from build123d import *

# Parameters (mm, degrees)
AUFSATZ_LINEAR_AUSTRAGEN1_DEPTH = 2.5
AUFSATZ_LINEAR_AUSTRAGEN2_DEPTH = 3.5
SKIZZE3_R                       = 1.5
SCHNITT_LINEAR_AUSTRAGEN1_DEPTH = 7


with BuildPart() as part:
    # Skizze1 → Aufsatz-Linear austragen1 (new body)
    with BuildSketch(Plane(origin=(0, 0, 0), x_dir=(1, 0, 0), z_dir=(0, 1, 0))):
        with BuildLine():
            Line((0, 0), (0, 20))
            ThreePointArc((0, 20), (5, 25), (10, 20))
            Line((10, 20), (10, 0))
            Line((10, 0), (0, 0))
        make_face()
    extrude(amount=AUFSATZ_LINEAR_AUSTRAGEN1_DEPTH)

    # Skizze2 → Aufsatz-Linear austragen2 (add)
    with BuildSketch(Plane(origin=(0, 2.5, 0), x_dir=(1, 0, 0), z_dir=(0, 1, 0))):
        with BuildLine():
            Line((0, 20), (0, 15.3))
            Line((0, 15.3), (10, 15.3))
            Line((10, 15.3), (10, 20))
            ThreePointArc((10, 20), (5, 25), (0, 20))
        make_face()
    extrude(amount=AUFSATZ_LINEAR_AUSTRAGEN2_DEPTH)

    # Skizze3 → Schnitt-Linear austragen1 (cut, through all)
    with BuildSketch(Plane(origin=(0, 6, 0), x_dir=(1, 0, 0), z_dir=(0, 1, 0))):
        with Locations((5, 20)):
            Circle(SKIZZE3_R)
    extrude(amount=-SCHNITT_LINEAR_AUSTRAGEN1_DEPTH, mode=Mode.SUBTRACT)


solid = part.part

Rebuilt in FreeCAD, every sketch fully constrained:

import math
import FreeCAD as App
import Part
import Sketcher

V = App.Vector

doc = App.newDocument("Part")
body = doc.addObject("PartDesign::Body", "Body")

# Sketch on XZ plane
sketch1 = body.newObject("Sketcher::SketchObject", "Sketch")
sketch1.AttachmentSupport = (doc.getObject("XZ_Plane"), [""])
sketch1.MapMode = "FlatFace"
sketch1.addGeometry([
    Part.LineSegment(V(0, -20, 0), V(0, 0, 0)),
    Part.LineSegment(V(0, 0, 0), V(10, 0, 0)),
    Part.LineSegment(V(10, 0, 0), V(10, -20, 0)),
    Part.ArcOfCircle(Part.Circle(V(5, -20, 0), V(0, 0, 1), 5), math.radians(180), math.radians(360)),
], False)
sketch1.addConstraint([
    Sketcher.Constraint("Coincident", 0, 2, 1, 1),
    Sketcher.Constraint("Coincident", 1, 2, 2, 1),
    Sketcher.Constraint("Tangent", 2, 2, 3, 2),
    Sketcher.Constraint("Tangent", 3, 1, 0, 1),
    Sketcher.Constraint("Vertical", 0),
    Sketcher.Constraint("Horizontal", 1),
    Sketcher.Constraint("Vertical", 2),
    Sketcher.Constraint("Coincident", 0, 2, -1, 1),
    Sketcher.Constraint("Radius", 3, 5.0),
    Sketcher.Constraint("DistanceY", 0, 1, 0, 2, 20.0),
])
pad1 = body.newObject("PartDesign::Pad", "Pad")
pad1.Profile = sketch1
pad1.Length = 2.5
pad1.Reversed = True

# Sketch on XZ plane
sketch2 = body.newObject("Sketcher::SketchObject", "Sketch001")
sketch2.AttachmentSupport = (doc.getObject("XZ_Plane"), [""])
sketch2.MapMode = "FlatFace"
sketch2.AttachmentOffset = App.Placement(V(0, 0, -2.5), App.Rotation())
sketch2.addGeometry([
    Part.LineSegment(V(0, -20, 0), V(0, -15.3, 0)),
    Part.LineSegment(V(0, -15.3, 0), V(10, -15.3, 0)),
    Part.LineSegment(V(10, -15.3, 0), V(10, -20, 0)),
    Part.ArcOfCircle(Part.Circle(V(5, -20, 0), V(0, 0, 1), 5), math.radians(180), math.radians(360)),
], False)
sketch2.addConstraint([
    Sketcher.Constraint("Coincident", 0, 2, 1, 1),
    Sketcher.Constraint("Coincident", 1, 2, 2, 1),
    Sketcher.Constraint("Tangent", 2, 2, 3, 2),
    Sketcher.Constraint("Tangent", 3, 1, 0, 1),
    Sketcher.Constraint("Vertical", 0),
    Sketcher.Constraint("Horizontal", 1),
    Sketcher.Constraint("Vertical", 2),
    Sketcher.Constraint("PointOnObject", 0, 2, -2),
    Sketcher.Constraint("Radius", 3, 5.0),
    Sketcher.Constraint("DistanceY", 0, 1, 0, 2, 4.7),
    Sketcher.Constraint("DistanceY", 3, 3, -1, 1, 20.0),
])
pad2 = body.newObject("PartDesign::Pad", "Pad001")
pad2.Profile = sketch2
pad2.Length = 3.5
pad2.Reversed = True

# Sketch on XZ plane
sketch3 = body.newObject("Sketcher::SketchObject", "Sketch002")
sketch3.AttachmentSupport = (doc.getObject("XZ_Plane"), [""])
sketch3.MapMode = "FlatFace"
sketch3.AttachmentOffset = App.Placement(V(0, 0, -6), App.Rotation())
sketch3.addGeometry(Part.Circle(V(5, -20, 0), V(0, 0, 1), 1.5), False)
sketch3.addConstraint([
    Sketcher.Constraint("Diameter", 0, 3.0),
    Sketcher.Constraint("DistanceX", -1, 1, 0, 3, 5.0),
    Sketcher.Constraint("DistanceY", 0, 3, -1, 1, 20.0),
])
pocket1 = body.newObject("PartDesign::Pocket", "Pocket")
pocket1.Profile = sketch3
pocket1.Type = "ThroughAll"
pocket1.Reversed = True

doc.recompute()
